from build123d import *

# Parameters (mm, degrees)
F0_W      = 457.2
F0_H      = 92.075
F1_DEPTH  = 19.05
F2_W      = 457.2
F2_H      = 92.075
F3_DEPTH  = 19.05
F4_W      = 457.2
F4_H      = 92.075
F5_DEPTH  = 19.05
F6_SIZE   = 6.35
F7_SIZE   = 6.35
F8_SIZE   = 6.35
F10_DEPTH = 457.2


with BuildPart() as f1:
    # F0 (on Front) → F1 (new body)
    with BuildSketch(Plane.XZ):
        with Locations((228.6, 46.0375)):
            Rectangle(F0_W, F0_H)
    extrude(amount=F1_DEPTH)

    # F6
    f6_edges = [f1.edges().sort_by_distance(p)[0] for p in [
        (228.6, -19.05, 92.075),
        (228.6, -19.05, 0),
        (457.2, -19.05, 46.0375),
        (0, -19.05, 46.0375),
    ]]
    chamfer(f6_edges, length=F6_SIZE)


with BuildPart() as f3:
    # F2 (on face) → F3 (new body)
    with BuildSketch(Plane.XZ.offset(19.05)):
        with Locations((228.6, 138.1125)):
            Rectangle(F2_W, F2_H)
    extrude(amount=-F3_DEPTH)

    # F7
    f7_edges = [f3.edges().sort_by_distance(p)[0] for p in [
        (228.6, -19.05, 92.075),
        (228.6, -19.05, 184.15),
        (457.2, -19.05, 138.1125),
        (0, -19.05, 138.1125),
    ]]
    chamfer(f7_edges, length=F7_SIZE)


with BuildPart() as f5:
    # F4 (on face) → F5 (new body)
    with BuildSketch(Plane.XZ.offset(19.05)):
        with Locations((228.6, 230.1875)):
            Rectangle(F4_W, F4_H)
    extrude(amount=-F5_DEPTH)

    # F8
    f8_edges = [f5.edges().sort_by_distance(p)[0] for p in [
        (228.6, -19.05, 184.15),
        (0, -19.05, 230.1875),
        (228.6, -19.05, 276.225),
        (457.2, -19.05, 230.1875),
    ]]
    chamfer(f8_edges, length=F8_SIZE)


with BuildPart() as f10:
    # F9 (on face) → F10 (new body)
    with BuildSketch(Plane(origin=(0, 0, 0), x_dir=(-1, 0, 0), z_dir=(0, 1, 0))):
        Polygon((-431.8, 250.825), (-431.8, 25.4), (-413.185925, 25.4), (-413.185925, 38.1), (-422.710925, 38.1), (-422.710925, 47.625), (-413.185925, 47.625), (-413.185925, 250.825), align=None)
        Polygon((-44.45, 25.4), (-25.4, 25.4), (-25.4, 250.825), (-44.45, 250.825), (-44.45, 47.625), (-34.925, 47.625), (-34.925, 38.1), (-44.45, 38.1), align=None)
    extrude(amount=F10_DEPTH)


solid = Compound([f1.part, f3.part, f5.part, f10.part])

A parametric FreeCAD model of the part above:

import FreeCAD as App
import Part
import Sketcher
Q = App.Units.Quantity


def edges_at(feature, points):
    """Names of the edges that pass closest to the given points."""
    edges = feature.Shape.Edges
    near = lambda p: min(range(len(edges)), key=lambda i: edges[i].distToShape(Part.Vertex(*p))[0])
    return sorted({f"Edge{near(p) + 1}" for p in points})

doc = App.newDocument("Part")
body = doc.addObject("PartDesign::Body", "Body")

# Sketch on XZ plane
sketch1 = body.newObject("Sketcher::SketchObject", "Sketch")
sketch1.AttachmentSupport = (doc.getObject("XZ_Plane"), [""])
sketch1.MapMode = "FlatFace"
sketch1.addGeometry([
    Part.LineSegment(App.Vector(0, 92.075, 0), App.Vector(0, 0, 0)),
    Part.LineSegment(App.Vector(0, 0, 0), App.Vector(457.2, 0, 0)),
    Part.LineSegment(App.Vector(457.2, 0, 0), App.Vector(457.2, 92.075, 0)),
    Part.LineSegment(App.Vector(457.2, 92.075, 0), App.Vector(0, 92.075, 0)),
], False)
sketch1.addConstraint([
    Sketcher.Constraint("Coincident", 0, 2, 1, 1),
    Sketcher.Constraint("Coincident", 1, 2, 2, 1),
    Sketcher.Constraint("Coincident", 2, 2, 3, 1),
    Sketcher.Constraint("Coincident", 3, 2, 0, 1),
    Sketcher.Constraint("Vertical", 0),
    Sketcher.Constraint("Horizontal", 1),
    Sketcher.Constraint("Vertical", 2),
    Sketcher.Constraint("Horizontal", 3),
    Sketcher.Constraint("Coincident", 0, 2, -1, 1),
    Sketcher.Constraint("DistanceX", 1, 1, 1, 2, Q("18 in")),
    Sketcher.Constraint("DistanceY", 0, 2, 0, 1, Q("3.625 in")),
])
pad1 = body.newObject("PartDesign::Pad", "Pad")
pad1.Profile = sketch1
pad1.Length = Q("0.75 in")
doc.recompute()

chamfer = body.newObject("PartDesign::Chamfer", "Chamfer")
chamfer.Base = (pad1, edges_at(pad1, [
    (228.6, -19.05, 92.075),
    (228.6, -19.05, 0),
    (457.2, -19.05, 46.038),
    (0, -19.05, 46.038),
]))
chamfer.Size = Q("0.25 in")
body2 = doc.addObject("PartDesign::Body", "Body001")

# Sketch on XZ plane
sketch2 = body2.newObject("Sketcher::SketchObject", "Sketch001")
sketch2.AttachmentSupport = (doc.getObject("XZ_Plane001"), [""])
sketch2.MapMode = "FlatFace"
sketch2.AttachmentOffset = App.Placement(App.Vector(0, 0, 0.75 * 25.4), App.Rotation())
sketch2.addGeometry([
    Part.LineSegment(App.Vector(0, 184.15, 0), App.Vector(0, 92.075, 0)),
    Part.LineSegment(App.Vector(0, 92.075, 0), App.Vector(457.2, 92.075, 0)),
    Part.LineSegment(App.Vector(457.2, 92.075, 0), App.Vector(457.2, 184.15, 0)),
    Part.LineSegment(App.Vector(457.2, 184.15, 0), App.Vector(0, 184.15, 0)),
], False)
sketch2.addConstraint([
    Sketcher.Constraint("Coincident", 0, 2, 1, 1),
    Sketcher.Constraint("Coincident", 1, 2, 2, 1),
    Sketcher.Constraint("Coincident", 2, 2, 3, 1),
    Sketcher.Constraint("Coincident", 3, 2, 0, 1),
    Sketcher.Constraint("Vertical", 0),
    Sketcher.Constraint("Horizontal", 1),
    Sketcher.Constraint("Vertical", 2),
    Sketcher.Constraint("Horizontal", 3),
    Sketcher.Constraint("PointOnObject", 0, 2, -2),
    Sketcher.Constraint("DistanceX", 1, 1, 1, 2, Q("18 in")),
    Sketcher.Constraint("DistanceY", 0, 2, 0, 1, Q("3.625 in")),
    Sketcher.Constraint("DistanceY", -1, 1, 2, 2, Q("7.25 in")),
])
pad2 = body2.newObject("PartDesign::Pad", "Pad001")
pad2.Profile = sketch2
pad2.Length = Q("0.75 in")
pad2.Reversed = True
doc.recompute()

chamfer2 = body2.newObject("PartDesign::Chamfer", "Chamfer001")
chamfer2.Base = (pad2, edges_at(pad2, [
    (228.6, -19.05, 92.075),
    (228.6, -19.05, 184.15),
    (457.2, -19.05, 138.113),
    (0, -19.05, 138.113),
]))
chamfer2.Size = Q("0.25 in")
body3 = doc.addObject("PartDesign::Body", "Body002")

# Sketch on XZ plane
sketch3 = body3.newObject("Sketcher::SketchObject", "Sketch002")
sketch3.AttachmentSupport = (doc.getObject("XZ_Plane002"), [""])
sketch3.MapMode = "FlatFace"
sketch3.AttachmentOffset = App.Placement(App.Vector(0, 0, 0.75 * 25.4), App.Rotation())
sketch3.addGeometry([
    Part.LineSegment(App.Vector(0, 276.225, 0), App.Vector(0, 184.15, 0)),
    Part.LineSegment(App.Vector(0, 184.15, 0), App.Vector(457.2, 184.15, 0)),
    Part.LineSegment(App.Vector(457.2, 184.15, 0), App.Vector(457.2, 276.225, 0)),
    Part.LineSegment(App.Vector(457.2, 276.225, 0), App.Vector(0, 276.225, 0)),
], False)
sketch3.addConstraint([
    Sketcher.Constraint("Coincident", 0, 2, 1, 1),
    Sketcher.Constraint("Coincident", 1, 2, 2, 1),
    Sketcher.Constraint("Coincident", 2, 2, 3, 1),
    Sketcher.Constraint("Coincident", 3, 2, 0, 1),
    Sketcher.Constraint("Vertical", 0),
    Sketcher.Constraint("Horizontal", 1),
    Sketcher.Constraint("Vertical", 2),
    Sketcher.Constraint("Horizontal", 3),
    Sketcher.Constraint("PointOnObject", 0, 2, -2),
    Sketcher.Constraint("DistanceX", 1, 1, 1, 2, Q("18 in")),
    Sketcher.Constraint("DistanceY", 0, 2, 0, 1, Q("3.625 in")),
    Sketcher.Constraint("DistanceY", -1, 1, 0, 2, Q("7.25 in")),
])
pad3 = body3.newObject("PartDesign::Pad", "Pad002")
pad3.Profile = sketch3
pad3.Length = Q("0.75 in")
pad3.Reversed = True
doc.recompute()

chamfer3 = body3.newObject("PartDesign::Chamfer", "Chamfer002")
chamfer3.Base = (pad3, edges_at(pad3, [
    (228.6, -19.05, 184.15),
    (0, -19.05, 230.188),
    (228.6, -19.05, 276.225),
    (457.2, -19.05, 230.188),
]))
chamfer3.Size = Q("0.25 in")
body4 = doc.addObject("PartDesign::Body", "Body003")
body4.AllowCompound = True

# Sketch on XZ plane
sketch4 = body4.newObject("Sketcher::SketchObject", "Sketch003")
sketch4.AttachmentSupport = (doc.getObject("XZ_Plane003"), [""])
sketch4.MapMode = "FlatFace"
sketch4.addGeometry([
    Part.LineSegment(App.Vector(431.8, 250.825, 0), App.Vector(431.8, 25.4, 0)),  # 0
    Part.LineSegment(App.Vector(431.8, 25.4, 0), App.Vector(413.185925, 25.4, 0)),  # 1
    Part.LineSegment(App.Vector(413.185925, 25.4, 0), App.Vector(413.185925, 38.1, 0)),  # 2
    Part.LineSegment(App.Vector(413.185925, 38.1, 0), App.Vector(422.710925, 38.1, 0)),  # 3
    Part.LineSegment(App.Vector(422.710925, 38.1, 0), App.Vector(422.710925, 47.625, 0)),  # 4
    Part.LineSegment(App.Vector(422.710925, 47.625, 0), App.Vector(413.185925, 47.625, 0)),  # 5
    Part.LineSegment(App.Vector(413.185925, 47.625, 0), App.Vector(413.185925, 250.825, 0)),  # 6
    Part.LineSegment(App.Vector(413.185925, 250.825, 0), App.Vector(431.8, 250.825, 0)),  # 7
    Part.LineSegment(App.Vector(44.45, 25.4, 0), App.Vector(25.4, 25.4, 0)),  # 8
    Part.LineSegment(App.Vector(25.4, 25.4, 0), App.Vector(25.4, 250.825, 0)),  # 9
    Part.LineSegment(App.Vector(25.4, 250.825, 0), App.Vector(44.45, 250.825, 0)),  # 10
    Part.LineSegment(App.Vector(44.45, 250.825, 0), App.Vector(44.45, 47.625, 0)),  # 11
    Part.LineSegment(App.Vector(44.45, 47.625, 0), App.Vector(34.925, 47.625, 0)),  # 12
    Part.LineSegment(App.Vector(34.925, 47.625, 0), App.Vector(34.925, 38.1, 0)),  # 13
    Part.LineSegment(App.Vector(34.925, 38.1, 0), App.Vector(44.45, 38.1, 0)),  # 14
    Part.LineSegment(App.Vector(44.45, 38.1, 0), App.Vector(44.45, 25.4, 0)),  # 15
], False)
sketch4.addConstraint([
    Sketcher.Constraint("Coincident", 0, 2, 1, 1),
    Sketcher.Constraint("Coincident", 1, 2, 2, 1),
    Sketcher.Constraint("Coincident", 2, 2, 3, 1),
    Sketcher.Constraint("Coincident", 3, 2, 4, 1),
    Sketcher.Constraint("Coincident", 4, 2, 5, 1),
    Sketcher.Constraint("Coincident", 5, 2, 6, 1),
    Sketcher.Constraint("Coincident", 6, 2, 7, 1),
    Sketcher.Constraint("Coincident", 7, 2, 0, 1),
    Sketcher.Constraint("Coincident", 8, 2, 9, 1),
    Sketcher.Constraint("Coincident", 9, 2, 10, 1),
    Sketcher.Constraint("Coincident", 10, 2, 11, 1),
    Sketcher.Constraint("Coincident", 11, 2, 12, 1),
    Sketcher.Constraint("Coincident", 12, 2, 13, 1),
    Sketcher.Constraint("Coincident", 13, 2, 14, 1),
    Sketcher.Constraint("Coincident", 14, 2, 15, 1),
    Sketcher.Constraint("Coincident", 15, 2, 8, 1),
    Sketcher.Constraint("Vertical", 0),
    Sketcher.Constraint("Horizontal", 1),
    Sketcher.Constraint("Vertical", 2),
    Sketcher.Constraint("Horizontal", 3),
    Sketcher.Constraint("Vertical", 4),
    Sketcher.Constraint("Horizontal", 5),
    Sketcher.Constraint("Vertical", 6),
    Sketcher.Constraint("Horizontal", 7),
    Sketcher.Constraint("Horizontal", 8),
    Sketcher.Constraint("Vertical", 9),
    Sketcher.Constraint("Horizontal", 10),
    Sketcher.Constraint("Vertical", 11),
    Sketcher.Constraint("Horizontal", 12),
    Sketcher.Constraint("Vertical", 13),
    Sketcher.Constraint("Horizontal", 14),
    Sketcher.Constraint("Vertical", 15),
    Sketcher.Constraint("Horizontal", 1, 2, 8, 2),
    Sketcher.Constraint("Horizontal", 7, 2, 9, 2),
    Sketcher.Constraint("Horizontal", 5, 2, 11, 2),
    Sketcher.Constraint("Horizontal", 3, 2, 13, 2),
    Sketcher.Constraint("Vertical", 2, 2, 5, 2),
    Sketcher.Constraint("Vertical", 11, 2, 14, 2),
    Sketcher.Constraint("Equal", 5, 12),
    Sketcher.Constraint("Equal", 14, 4),
    Sketcher.Constraint("DistanceY", 6, 1, 6, 2, Q("8 in")),
    Sketcher.Constraint("DistanceY", 2, 1, 2, 2, Q("0.5 in")),
    Sketcher.Constraint("DistanceX", -1, 1, 0, 2, Q("17 in")),
    Sketcher.Constraint("DistanceY", -1, 1, 0, 2, Q("1 in")),
    Sketcher.Constraint("DistanceX", -1, 1, 8, 2, Q("1 in")),
    Sketcher.Constraint("DistanceX", 8, 2, 8, 1, Q("0.75 in")),
    Sketcher.Constraint("DistanceX", 3, 1, 3, 2, Q("0.375 in")),
    Sketcher.Constraint("DistanceX", 1, 2, 1, 1, 18.614075),
])
pad4 = body4.newObject("PartDesign::Pad", "Pad003")
pad4.Profile = sketch4
pad4.Length = Q("18 in")
pad4.Reversed = True

doc.recompute()
